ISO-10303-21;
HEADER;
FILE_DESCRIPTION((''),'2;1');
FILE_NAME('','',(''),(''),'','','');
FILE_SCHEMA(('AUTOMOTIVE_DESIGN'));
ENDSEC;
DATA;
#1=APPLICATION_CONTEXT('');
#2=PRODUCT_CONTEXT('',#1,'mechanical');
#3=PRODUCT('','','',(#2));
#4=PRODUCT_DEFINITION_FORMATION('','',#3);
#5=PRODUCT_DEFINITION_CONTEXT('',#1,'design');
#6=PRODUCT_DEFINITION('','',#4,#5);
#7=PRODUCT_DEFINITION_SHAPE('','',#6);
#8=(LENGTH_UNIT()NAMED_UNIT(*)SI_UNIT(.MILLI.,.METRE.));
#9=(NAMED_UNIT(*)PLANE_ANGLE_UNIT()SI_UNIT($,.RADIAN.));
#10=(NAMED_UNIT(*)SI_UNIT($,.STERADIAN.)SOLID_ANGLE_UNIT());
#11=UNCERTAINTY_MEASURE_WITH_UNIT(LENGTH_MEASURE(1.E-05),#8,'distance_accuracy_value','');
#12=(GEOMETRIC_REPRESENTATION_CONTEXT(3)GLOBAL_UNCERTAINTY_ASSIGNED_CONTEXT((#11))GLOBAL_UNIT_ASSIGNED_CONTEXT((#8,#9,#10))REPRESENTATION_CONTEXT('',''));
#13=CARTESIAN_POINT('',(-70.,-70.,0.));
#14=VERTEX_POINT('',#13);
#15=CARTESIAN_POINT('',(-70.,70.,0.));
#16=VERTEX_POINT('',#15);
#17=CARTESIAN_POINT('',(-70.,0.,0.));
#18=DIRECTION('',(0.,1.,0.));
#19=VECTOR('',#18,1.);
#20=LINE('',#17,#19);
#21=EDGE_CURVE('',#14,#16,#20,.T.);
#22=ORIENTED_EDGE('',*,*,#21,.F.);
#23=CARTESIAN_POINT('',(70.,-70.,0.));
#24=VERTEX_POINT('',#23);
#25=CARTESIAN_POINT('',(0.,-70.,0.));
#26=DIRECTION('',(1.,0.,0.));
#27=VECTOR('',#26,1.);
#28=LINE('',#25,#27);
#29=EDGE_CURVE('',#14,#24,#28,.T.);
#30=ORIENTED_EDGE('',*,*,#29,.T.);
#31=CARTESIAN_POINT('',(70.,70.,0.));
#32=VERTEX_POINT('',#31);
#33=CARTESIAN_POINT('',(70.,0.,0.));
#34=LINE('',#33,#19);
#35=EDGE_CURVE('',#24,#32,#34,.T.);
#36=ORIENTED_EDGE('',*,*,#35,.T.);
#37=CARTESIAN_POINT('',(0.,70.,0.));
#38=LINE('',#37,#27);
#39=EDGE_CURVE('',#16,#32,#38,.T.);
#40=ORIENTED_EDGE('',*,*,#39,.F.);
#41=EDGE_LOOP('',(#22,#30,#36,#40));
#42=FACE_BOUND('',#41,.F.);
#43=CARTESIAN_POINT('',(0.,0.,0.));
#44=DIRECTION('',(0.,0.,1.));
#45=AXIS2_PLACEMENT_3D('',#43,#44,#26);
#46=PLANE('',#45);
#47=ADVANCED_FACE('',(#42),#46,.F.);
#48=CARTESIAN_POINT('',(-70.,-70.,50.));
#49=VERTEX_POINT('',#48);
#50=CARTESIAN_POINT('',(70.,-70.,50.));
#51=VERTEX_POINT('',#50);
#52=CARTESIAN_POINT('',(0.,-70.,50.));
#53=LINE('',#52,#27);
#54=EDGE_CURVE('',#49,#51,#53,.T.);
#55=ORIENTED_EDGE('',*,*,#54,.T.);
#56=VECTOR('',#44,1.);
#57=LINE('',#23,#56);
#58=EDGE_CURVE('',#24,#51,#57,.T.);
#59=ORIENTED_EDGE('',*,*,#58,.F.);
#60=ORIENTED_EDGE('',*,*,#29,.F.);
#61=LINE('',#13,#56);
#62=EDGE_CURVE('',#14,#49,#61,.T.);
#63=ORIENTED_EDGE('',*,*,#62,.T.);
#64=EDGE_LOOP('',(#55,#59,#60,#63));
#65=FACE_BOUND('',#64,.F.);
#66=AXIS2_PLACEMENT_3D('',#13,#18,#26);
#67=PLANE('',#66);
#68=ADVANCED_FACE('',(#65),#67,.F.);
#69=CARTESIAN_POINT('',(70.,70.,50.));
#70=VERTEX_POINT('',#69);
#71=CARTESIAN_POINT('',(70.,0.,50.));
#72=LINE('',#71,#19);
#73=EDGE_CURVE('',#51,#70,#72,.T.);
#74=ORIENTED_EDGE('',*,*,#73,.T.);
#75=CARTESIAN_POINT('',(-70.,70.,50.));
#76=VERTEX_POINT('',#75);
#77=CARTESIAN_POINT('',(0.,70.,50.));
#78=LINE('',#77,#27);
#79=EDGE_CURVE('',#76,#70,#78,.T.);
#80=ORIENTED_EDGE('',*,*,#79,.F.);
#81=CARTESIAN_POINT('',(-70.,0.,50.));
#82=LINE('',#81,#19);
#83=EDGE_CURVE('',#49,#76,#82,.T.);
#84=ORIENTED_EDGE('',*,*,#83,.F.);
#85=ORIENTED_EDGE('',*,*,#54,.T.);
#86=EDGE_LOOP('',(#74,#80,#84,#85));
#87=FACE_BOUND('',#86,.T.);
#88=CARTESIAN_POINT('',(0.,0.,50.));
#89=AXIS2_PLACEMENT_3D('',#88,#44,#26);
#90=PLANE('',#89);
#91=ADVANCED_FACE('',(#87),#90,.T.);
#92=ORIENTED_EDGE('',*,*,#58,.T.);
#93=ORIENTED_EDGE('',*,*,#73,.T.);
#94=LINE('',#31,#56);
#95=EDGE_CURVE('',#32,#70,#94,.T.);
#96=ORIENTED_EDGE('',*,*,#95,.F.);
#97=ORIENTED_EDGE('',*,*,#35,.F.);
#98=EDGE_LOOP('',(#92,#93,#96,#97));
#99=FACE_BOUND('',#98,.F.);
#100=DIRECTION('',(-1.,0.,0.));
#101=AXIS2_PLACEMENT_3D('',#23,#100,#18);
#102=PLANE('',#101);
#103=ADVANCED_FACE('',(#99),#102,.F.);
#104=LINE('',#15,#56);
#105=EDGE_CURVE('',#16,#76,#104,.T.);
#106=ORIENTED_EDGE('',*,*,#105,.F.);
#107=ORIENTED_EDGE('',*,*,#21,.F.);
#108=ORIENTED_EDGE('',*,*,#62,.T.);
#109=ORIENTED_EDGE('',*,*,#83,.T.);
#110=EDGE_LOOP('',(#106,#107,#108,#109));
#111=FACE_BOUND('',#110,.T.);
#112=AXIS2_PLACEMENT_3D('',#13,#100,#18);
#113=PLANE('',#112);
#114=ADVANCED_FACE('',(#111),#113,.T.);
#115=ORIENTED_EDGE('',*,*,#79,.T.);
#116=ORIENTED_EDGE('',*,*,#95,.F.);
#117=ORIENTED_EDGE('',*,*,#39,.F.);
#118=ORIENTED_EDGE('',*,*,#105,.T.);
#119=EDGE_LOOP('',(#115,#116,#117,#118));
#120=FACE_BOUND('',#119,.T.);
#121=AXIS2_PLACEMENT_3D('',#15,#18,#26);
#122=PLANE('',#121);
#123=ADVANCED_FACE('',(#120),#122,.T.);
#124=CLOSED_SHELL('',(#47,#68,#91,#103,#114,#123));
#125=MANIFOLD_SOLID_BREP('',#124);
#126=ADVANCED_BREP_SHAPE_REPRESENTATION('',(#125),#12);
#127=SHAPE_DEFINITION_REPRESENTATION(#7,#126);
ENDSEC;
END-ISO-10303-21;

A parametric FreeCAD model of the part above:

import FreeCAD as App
import Part
import Sketcher

doc = App.newDocument("Part")
params = doc.addObject("Spreadsheet::Sheet", "Params")
for row, (alias, value) in enumerate([
    ("sketch1_width", "140 mm"),
    ("pad1_length", "50 mm"),
], start=1):
    params.set(f"A{row}", alias)
    params.set(f"B{row}", "=" + value)
    params.setAlias(f"B{row}", alias)

body = doc.addObject("PartDesign::Body", "Body")

sketch1 = doc.addObject("Sketcher::SketchObject", "Sketch")
body.addObject(sketch1)
sketch1.AttachmentSupport = (doc.XY_Plane, [""])
sketch1.MapMode = "FlatFace"
sketch1.addGeometry(Part.LineSegment(App.Vector(-70, 70, 0), App.Vector(-70, -70, 0)), False)
sketch1.addGeometry(Part.LineSegment(App.Vector(-70, -70, 0), App.Vector(70, -70, 0)), False)
sketch1.addGeometry(Part.LineSegment(App.Vector(70, -70, 0), App.Vector(70, 70, 0)), False)
sketch1.addGeometry(Part.LineSegment(App.Vector(70, 70, 0), App.Vector(-70, 70, 0)), False)
sketch1.addConstraint(Sketcher.Constraint("Coincident", 0, 2, 1, 1))
sketch1.addConstraint(Sketcher.Constraint("Coincident", 1, 2, 2, 1))
sketch1.addConstraint(Sketcher.Constraint("Coincident", 2, 2, 3, 1))
sketch1.addConstraint(Sketcher.Constraint("Coincident", 3, 2, 0, 1))
sketch1.addConstraint(Sketcher.Constraint("Vertical", 0))
sketch1.addConstraint(Sketcher.Constraint("Horizontal", 1))
sketch1.addConstraint(Sketcher.Constraint("Vertical", 2))
sketch1.addConstraint(Sketcher.Constraint("Horizontal", 3))
sketch1.addConstraint(Sketcher.Constraint("Symmetric", 0, 2, 2, 2, -1, 1))
sketch1.addConstraint(Sketcher.Constraint("Equal", 3, 0))
sketch1.addConstraint(Sketcher.Constraint("DistanceX", 1, 1, 1, 2, 140.0))
sketch1.setExpression("Constraints[10]", "Params.sketch1_width")
pad1 = doc.addObject("PartDesign::Pad", "Pad")
body.addObject(pad1)
pad1.Profile = sketch1
pad1.setExpression("Length", "Params.pad1_length")

doc.recompute()
